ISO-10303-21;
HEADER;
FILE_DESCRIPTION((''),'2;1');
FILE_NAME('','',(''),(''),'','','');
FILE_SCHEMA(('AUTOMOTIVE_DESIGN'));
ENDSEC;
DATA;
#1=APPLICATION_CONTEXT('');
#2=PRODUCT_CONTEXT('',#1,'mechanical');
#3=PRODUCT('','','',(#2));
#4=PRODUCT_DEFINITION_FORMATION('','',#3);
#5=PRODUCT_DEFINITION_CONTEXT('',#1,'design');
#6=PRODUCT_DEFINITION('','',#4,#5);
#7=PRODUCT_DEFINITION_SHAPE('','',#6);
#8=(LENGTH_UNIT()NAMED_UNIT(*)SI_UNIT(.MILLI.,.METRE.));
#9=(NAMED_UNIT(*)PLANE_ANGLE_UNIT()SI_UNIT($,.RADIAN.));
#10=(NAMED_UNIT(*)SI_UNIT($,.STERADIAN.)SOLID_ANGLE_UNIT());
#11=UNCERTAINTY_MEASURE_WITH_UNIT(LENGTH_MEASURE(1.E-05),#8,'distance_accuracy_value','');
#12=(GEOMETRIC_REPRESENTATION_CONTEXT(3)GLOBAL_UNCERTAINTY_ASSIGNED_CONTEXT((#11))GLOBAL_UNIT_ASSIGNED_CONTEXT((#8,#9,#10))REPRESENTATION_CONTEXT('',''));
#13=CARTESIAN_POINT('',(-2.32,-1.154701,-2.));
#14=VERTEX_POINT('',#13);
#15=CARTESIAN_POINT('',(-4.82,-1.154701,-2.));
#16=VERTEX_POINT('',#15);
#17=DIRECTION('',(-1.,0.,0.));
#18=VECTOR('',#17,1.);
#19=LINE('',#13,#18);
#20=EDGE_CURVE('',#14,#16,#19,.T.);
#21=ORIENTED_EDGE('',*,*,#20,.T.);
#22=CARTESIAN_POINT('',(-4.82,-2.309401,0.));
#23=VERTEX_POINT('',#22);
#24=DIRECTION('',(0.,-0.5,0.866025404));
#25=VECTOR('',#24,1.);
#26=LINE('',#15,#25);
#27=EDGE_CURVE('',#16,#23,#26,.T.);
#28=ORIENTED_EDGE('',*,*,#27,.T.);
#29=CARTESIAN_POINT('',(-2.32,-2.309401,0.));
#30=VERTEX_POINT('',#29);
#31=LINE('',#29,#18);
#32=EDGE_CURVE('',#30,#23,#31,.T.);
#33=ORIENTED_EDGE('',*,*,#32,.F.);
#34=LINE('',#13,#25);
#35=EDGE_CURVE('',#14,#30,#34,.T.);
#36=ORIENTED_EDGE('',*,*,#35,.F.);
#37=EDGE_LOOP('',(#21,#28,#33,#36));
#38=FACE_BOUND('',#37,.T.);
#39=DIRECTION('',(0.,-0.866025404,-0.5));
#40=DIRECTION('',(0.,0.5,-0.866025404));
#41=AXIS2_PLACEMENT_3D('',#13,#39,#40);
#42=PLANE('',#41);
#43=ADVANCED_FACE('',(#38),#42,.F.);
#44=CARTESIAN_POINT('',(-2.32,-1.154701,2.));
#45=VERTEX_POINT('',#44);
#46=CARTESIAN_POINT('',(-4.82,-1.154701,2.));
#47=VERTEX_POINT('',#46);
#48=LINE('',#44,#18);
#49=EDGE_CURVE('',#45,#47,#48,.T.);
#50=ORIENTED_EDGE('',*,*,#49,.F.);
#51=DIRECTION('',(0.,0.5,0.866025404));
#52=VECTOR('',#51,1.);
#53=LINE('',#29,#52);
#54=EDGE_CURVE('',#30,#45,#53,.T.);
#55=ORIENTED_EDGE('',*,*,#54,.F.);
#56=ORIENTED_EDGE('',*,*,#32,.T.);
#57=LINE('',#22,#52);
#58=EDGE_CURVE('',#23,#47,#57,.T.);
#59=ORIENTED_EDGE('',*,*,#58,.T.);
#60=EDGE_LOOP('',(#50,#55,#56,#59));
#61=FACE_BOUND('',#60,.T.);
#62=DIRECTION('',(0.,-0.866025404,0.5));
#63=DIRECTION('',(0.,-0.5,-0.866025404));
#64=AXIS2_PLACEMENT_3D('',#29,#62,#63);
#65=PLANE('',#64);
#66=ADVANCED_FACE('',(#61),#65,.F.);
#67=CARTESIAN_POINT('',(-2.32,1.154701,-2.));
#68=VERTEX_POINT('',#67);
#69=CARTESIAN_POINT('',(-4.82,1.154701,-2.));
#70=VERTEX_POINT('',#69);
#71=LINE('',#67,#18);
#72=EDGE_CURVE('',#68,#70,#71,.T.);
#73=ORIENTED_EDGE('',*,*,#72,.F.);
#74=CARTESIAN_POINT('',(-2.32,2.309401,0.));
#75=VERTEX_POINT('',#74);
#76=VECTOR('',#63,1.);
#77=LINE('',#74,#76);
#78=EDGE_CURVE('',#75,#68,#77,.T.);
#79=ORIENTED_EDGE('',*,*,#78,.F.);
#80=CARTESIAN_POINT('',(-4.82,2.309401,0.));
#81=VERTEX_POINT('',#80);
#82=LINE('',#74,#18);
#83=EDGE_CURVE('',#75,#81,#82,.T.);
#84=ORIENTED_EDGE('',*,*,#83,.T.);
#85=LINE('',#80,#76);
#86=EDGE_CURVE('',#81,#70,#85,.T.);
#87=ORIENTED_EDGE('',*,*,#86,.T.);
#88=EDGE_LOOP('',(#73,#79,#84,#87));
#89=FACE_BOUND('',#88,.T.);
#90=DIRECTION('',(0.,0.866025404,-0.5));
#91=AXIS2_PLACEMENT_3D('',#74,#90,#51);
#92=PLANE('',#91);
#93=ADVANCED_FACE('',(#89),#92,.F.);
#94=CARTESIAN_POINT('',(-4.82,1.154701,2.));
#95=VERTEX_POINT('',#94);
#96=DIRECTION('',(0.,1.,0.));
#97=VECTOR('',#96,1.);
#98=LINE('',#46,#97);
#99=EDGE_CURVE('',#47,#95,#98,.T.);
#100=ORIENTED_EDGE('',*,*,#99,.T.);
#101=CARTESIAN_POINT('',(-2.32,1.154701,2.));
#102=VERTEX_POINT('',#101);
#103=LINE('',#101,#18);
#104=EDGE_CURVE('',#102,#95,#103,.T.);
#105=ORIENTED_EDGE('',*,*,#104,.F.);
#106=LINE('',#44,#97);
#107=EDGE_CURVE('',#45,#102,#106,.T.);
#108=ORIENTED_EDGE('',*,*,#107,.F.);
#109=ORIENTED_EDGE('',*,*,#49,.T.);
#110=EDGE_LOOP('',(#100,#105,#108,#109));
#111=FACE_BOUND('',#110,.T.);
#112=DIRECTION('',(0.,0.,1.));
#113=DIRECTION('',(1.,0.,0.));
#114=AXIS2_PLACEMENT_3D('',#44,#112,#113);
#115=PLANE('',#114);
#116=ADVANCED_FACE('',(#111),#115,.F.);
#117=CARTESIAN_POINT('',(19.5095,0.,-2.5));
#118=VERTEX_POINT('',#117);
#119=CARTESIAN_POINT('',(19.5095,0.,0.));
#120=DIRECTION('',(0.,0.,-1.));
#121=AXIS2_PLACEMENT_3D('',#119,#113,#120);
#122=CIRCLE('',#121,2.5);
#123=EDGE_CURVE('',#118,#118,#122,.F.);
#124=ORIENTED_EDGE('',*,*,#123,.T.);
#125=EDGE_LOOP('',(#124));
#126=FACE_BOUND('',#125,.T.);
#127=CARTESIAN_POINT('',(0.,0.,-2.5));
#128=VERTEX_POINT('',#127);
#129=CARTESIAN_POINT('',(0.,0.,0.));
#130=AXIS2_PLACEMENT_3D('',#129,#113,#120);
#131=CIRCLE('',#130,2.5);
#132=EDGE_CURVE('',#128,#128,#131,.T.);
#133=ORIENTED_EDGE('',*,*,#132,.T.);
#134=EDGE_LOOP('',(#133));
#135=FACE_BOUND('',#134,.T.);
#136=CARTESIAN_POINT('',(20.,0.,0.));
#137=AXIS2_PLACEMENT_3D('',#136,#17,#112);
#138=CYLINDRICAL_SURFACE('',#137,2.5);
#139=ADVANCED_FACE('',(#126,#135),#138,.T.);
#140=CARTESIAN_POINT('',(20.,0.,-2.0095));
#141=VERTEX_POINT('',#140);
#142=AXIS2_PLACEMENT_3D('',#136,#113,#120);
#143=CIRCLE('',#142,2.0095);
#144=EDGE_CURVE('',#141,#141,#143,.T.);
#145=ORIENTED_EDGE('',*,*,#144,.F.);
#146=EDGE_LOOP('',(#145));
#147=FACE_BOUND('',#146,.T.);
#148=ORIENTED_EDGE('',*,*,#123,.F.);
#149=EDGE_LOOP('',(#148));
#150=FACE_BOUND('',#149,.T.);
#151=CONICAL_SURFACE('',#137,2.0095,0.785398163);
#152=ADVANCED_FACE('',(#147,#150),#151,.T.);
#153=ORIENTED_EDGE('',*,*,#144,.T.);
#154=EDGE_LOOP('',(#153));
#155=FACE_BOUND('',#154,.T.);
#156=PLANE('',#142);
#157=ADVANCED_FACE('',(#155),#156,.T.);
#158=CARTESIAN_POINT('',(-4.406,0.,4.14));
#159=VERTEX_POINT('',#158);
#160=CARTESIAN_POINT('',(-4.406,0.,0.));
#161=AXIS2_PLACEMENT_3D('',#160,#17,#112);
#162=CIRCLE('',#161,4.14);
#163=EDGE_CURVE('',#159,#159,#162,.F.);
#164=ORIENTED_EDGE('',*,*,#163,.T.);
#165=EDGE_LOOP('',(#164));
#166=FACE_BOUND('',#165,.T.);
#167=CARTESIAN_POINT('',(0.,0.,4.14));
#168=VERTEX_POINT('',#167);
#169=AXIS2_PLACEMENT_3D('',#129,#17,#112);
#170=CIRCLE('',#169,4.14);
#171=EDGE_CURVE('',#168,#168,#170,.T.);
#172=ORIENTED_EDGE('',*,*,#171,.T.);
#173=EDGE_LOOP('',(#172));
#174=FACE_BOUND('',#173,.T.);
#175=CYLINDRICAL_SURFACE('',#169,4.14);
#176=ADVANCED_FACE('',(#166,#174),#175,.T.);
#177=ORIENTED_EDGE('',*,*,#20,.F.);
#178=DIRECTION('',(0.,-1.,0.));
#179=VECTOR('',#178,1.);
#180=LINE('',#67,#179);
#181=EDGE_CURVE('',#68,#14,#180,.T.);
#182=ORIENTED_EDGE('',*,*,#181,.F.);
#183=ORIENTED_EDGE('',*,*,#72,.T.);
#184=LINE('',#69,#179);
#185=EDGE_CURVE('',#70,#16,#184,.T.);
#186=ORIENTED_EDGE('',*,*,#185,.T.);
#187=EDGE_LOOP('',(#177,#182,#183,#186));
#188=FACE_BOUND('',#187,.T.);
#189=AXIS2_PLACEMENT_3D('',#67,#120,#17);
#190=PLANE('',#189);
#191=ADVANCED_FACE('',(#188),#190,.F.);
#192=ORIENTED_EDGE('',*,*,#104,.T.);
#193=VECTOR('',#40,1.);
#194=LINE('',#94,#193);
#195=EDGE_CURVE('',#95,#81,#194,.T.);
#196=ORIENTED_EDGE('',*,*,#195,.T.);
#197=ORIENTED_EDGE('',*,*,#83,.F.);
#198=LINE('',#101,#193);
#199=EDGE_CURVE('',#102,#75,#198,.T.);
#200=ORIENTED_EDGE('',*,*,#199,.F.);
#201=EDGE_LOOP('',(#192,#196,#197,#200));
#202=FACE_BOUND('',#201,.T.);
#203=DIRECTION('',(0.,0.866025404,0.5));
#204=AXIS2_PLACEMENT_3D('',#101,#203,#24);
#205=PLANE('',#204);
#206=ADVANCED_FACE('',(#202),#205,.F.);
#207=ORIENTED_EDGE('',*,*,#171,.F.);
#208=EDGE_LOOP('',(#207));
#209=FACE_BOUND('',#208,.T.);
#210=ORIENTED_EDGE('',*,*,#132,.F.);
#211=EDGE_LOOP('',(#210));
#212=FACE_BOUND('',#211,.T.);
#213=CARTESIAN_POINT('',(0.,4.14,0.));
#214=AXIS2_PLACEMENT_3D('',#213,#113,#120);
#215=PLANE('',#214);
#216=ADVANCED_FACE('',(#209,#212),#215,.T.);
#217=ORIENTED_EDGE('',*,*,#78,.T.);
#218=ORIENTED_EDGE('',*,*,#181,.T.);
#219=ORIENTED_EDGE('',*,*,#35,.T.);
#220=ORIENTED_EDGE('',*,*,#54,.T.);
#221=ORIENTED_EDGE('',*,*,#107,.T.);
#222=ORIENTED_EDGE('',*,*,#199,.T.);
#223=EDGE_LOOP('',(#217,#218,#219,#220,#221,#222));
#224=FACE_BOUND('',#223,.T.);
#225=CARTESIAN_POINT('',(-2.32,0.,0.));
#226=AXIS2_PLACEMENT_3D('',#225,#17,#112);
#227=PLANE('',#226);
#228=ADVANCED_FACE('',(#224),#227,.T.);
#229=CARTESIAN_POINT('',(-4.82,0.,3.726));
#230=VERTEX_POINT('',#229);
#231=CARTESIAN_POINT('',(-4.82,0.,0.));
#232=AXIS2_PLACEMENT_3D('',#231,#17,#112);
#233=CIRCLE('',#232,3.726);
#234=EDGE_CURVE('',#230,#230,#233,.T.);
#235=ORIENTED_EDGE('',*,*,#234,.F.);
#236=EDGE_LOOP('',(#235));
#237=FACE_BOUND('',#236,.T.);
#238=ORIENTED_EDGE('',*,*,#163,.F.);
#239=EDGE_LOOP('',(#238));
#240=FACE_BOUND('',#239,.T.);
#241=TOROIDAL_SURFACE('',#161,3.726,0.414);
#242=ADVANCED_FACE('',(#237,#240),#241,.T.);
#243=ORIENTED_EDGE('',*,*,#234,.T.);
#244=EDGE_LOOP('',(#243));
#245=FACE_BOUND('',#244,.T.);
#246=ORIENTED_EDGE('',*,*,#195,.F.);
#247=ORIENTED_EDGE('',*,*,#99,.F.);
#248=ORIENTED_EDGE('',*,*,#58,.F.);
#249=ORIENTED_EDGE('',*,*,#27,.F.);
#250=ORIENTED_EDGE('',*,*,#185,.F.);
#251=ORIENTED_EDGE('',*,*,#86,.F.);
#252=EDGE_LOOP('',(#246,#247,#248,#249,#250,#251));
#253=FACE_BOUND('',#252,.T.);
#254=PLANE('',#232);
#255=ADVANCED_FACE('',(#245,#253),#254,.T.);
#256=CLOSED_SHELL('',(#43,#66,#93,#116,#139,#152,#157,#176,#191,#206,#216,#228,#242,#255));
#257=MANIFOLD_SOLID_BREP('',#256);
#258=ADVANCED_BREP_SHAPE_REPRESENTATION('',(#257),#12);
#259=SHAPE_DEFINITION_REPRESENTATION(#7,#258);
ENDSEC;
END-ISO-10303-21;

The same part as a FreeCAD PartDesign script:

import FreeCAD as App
import Part
import Sketcher
Q = App.Units.Quantity


def edges_at(feature, points):
    """Names of the edges that pass closest to the given points."""
    edges = feature.Shape.Edges
    near = lambda p: min(range(len(edges)), key=lambda i: edges[i].distToShape(Part.Vertex(*p))[0])
    return sorted({f"Edge{near(p) + 1}" for p in points})

doc = App.newDocument("Part")
params = doc.addObject("Spreadsheet::Sheet", "Params")
for row, (alias, value) in enumerate([
    ("sketch1_width", "4.82 mm"),
    ("sketch1_height", "4.14 mm"),
    ("revolution_angle", "360 deg"),
    ("sketch2_diameter", "5 mm"),
    ("pad1_length", "20 mm"),
    ("pocket1_length", "2.5 mm"),
    ("chamfer_size", "0.4905 mm"),
    ("fillet_radius", "0.414 mm"),
], start=1):
    params.set(f"A{row}", alias)
    params.set(f"B{row}", "=" + value)
    params.setAlias(f"B{row}", alias)

body = doc.addObject("PartDesign::Body", "Body")

sketch1 = body.newObject("Sketcher::SketchObject", "Sketch")
sketch1.AttachmentSupport = (doc.getObject("XY_Plane"), [""])
sketch1.MapMode = "FlatFace"
sketch1.addGeometry(Part.LineSegment(App.Vector(0, 4.1, 0), App.Vector(0, 0, 0)), False)
sketch1.addGeometry(Part.LineSegment(App.Vector(0, 0, 0), App.Vector(-4.8, 0, 0)), False)
sketch1.addGeometry(Part.LineSegment(App.Vector(-4.8, 0, 0), App.Vector(-4.8, 4.1, 0)), False)
sketch1.addGeometry(Part.LineSegment(App.Vector(-4.8, 4.1, 0), App.Vector(0, 4.1, 0)), False)
sketch1.addConstraint(Sketcher.Constraint("Coincident", 0, 2, 1, 1))
sketch1.addConstraint(Sketcher.Constraint("Coincident", 1, 2, 2, 1))
sketch1.addConstraint(Sketcher.Constraint("Coincident", 2, 2, 3, 1))
sketch1.addConstraint(Sketcher.Constraint("Coincident", 3, 2, 0, 1))
sketch1.addConstraint(Sketcher.Constraint("Vertical", 0))
sketch1.addConstraint(Sketcher.Constraint("Horizontal", 1))
sketch1.addConstraint(Sketcher.Constraint("Vertical", 2))
sketch1.addConstraint(Sketcher.Constraint("Horizontal", 3))
sketch1.addConstraint(Sketcher.Constraint("Coincident", 0, 2, -1, 1))
sketch1.addConstraint(Sketcher.Constraint("DistanceX", 1, 2, 1, 1, Q("4.82 mm")))
sketch1.addConstraint(Sketcher.Constraint("DistanceY", 0, 2, 0, 1, Q("4.14 mm")))
sketch1.setExpression("Constraints[9]", "Params.sketch1_width")
sketch1.setExpression("Constraints[10]", "Params.sketch1_height")
revolution = body.newObject("PartDesign::Revolution", "Revolution")
revolution.Profile = sketch1
revolution.ReferenceAxis = (sketch1, ["H_Axis"])
revolution.setExpression("Angle", "Params.revolution_angle")

sketch2 = body.newObject("Sketcher::SketchObject", "Sketch001")
sketch2.AttachmentSupport = (doc.getObject("YZ_Plane"), [""])
sketch2.MapMode = "FlatFace"
sketch2.addGeometry(Part.Circle(App.Vector(0, 0, 0), App.Vector(0, 0, 1), 2.5), False)
sketch2.addConstraint(Sketcher.Constraint("Coincident", 0, 3, -1, 1))
sketch2.addConstraint(Sketcher.Constraint("Diameter", 0, Q("5 mm")))
sketch2.setExpression("Constraints[1]", "Params.sketch2_diameter")
pad1 = body.newObject("PartDesign::Pad", "Pad")
pad1.Profile = sketch2
pad1.setExpression("Length", "Params.pad1_length")

sketch3 = body.newObject("Sketcher::SketchObject", "Sketch002")
sketch3.AttachmentSupport = (doc.getObject("YZ_Plane"), [""])
sketch3.MapMode = "FlatFace"
sketch3.AttachmentOffset = App.Placement(App.Vector(0, 0, -4.82), App.Rotation())
sketch3.addGeometry(Part.LineSegment(App.Vector(-1.2, -2, 0), App.Vector(-2.3, 0, 0)), False)
sketch3.addGeometry(Part.LineSegment(App.Vector(-2.3, 0, 0), App.Vector(-1.2, 2, 0)), False)
sketch3.addGeometry(Part.LineSegment(App.Vector(-1.2, 2, 0), App.Vector(1.2, 2, 0)), False)
sketch3.addGeometry(Part.LineSegment(App.Vector(1.2, 2, 0), App.Vector(2.3, 0, 0)), False)
sketch3.addGeometry(Part.LineSegment(App.Vector(2.3, 0, 0), App.Vector(1.2, -2, 0)), False)
sketch3.addGeometry(Part.LineSegment(App.Vector(1.2, -2, 0), App.Vector(-1.2, -2, 0)), False)
sketch3.addConstraint(Sketcher.Constraint("Coincident", 0, 2, 1, 1))
sketch3.addConstraint(Sketcher.Constraint("Coincident", 1, 2, 2, 1))
sketch3.addConstraint(Sketcher.Constraint("Coincident", 2, 2, 3, 1))
sketch3.addConstraint(Sketcher.Constraint("Coincident", 3, 2, 4, 1))
sketch3.addConstraint(Sketcher.Constraint("Coincident", 4, 2, 5, 1))
sketch3.addConstraint(Sketcher.Constraint("Coincident", 5, 2, 0, 1))
sketch3.addConstraint(Sketcher.Constraint("Horizontal", 2))
sketch3.addConstraint(Sketcher.Constraint("Horizontal", 5))
sketch3.addConstraint(Sketcher.Constraint("Symmetric", 0, 2, 3, 2, -1, 1))
sketch3.addConstraint(Sketcher.Constraint("Symmetric", 1, 2, 4, 2, -1, 1))
sketch3.addConstraint(Sketcher.Constraint("PointOnObject", 0, 2, -1))
sketch3.addConstraint(Sketcher.Constraint("Parallel", 0, 3))
sketch3.addConstraint(Sketcher.Constraint("Vertical", 2, 2, 4, 2))
sketch3.addConstraint(Sketcher.Constraint("Angle", 0, Q("120 deg")))
sketch3.addConstraint(Sketcher.Constraint("DistanceY", -1, 1, 1, 2, Q("2 mm")))
sketch3.addConstraint(Sketcher.Constraint("DistanceX", 2, 1, 2, 2, Q("2.309401 mm")))
pocket1 = body.newObject("PartDesign::Pocket", "Pocket")
pocket1.Profile = sketch3
pocket1.setExpression("Length", "Params.pocket1_length")
pocket1.Reversed = True
doc.recompute()

chamfer = body.newObject("PartDesign::Chamfer", "Chamfer")
chamfer.Base = (pocket1, edges_at(pocket1, [(20, 0, 2.5)]))
chamfer.setExpression("Size", "Params.chamfer_size")
doc.recompute()

fillet = body.newObject("PartDesign::Fillet", "Fillet")
fillet.Base = (chamfer, edges_at(chamfer, [(-4.82, 0, -4.14)]))
fillet.setExpression("Radius", "Params.fillet_radius")

doc.recompute()
